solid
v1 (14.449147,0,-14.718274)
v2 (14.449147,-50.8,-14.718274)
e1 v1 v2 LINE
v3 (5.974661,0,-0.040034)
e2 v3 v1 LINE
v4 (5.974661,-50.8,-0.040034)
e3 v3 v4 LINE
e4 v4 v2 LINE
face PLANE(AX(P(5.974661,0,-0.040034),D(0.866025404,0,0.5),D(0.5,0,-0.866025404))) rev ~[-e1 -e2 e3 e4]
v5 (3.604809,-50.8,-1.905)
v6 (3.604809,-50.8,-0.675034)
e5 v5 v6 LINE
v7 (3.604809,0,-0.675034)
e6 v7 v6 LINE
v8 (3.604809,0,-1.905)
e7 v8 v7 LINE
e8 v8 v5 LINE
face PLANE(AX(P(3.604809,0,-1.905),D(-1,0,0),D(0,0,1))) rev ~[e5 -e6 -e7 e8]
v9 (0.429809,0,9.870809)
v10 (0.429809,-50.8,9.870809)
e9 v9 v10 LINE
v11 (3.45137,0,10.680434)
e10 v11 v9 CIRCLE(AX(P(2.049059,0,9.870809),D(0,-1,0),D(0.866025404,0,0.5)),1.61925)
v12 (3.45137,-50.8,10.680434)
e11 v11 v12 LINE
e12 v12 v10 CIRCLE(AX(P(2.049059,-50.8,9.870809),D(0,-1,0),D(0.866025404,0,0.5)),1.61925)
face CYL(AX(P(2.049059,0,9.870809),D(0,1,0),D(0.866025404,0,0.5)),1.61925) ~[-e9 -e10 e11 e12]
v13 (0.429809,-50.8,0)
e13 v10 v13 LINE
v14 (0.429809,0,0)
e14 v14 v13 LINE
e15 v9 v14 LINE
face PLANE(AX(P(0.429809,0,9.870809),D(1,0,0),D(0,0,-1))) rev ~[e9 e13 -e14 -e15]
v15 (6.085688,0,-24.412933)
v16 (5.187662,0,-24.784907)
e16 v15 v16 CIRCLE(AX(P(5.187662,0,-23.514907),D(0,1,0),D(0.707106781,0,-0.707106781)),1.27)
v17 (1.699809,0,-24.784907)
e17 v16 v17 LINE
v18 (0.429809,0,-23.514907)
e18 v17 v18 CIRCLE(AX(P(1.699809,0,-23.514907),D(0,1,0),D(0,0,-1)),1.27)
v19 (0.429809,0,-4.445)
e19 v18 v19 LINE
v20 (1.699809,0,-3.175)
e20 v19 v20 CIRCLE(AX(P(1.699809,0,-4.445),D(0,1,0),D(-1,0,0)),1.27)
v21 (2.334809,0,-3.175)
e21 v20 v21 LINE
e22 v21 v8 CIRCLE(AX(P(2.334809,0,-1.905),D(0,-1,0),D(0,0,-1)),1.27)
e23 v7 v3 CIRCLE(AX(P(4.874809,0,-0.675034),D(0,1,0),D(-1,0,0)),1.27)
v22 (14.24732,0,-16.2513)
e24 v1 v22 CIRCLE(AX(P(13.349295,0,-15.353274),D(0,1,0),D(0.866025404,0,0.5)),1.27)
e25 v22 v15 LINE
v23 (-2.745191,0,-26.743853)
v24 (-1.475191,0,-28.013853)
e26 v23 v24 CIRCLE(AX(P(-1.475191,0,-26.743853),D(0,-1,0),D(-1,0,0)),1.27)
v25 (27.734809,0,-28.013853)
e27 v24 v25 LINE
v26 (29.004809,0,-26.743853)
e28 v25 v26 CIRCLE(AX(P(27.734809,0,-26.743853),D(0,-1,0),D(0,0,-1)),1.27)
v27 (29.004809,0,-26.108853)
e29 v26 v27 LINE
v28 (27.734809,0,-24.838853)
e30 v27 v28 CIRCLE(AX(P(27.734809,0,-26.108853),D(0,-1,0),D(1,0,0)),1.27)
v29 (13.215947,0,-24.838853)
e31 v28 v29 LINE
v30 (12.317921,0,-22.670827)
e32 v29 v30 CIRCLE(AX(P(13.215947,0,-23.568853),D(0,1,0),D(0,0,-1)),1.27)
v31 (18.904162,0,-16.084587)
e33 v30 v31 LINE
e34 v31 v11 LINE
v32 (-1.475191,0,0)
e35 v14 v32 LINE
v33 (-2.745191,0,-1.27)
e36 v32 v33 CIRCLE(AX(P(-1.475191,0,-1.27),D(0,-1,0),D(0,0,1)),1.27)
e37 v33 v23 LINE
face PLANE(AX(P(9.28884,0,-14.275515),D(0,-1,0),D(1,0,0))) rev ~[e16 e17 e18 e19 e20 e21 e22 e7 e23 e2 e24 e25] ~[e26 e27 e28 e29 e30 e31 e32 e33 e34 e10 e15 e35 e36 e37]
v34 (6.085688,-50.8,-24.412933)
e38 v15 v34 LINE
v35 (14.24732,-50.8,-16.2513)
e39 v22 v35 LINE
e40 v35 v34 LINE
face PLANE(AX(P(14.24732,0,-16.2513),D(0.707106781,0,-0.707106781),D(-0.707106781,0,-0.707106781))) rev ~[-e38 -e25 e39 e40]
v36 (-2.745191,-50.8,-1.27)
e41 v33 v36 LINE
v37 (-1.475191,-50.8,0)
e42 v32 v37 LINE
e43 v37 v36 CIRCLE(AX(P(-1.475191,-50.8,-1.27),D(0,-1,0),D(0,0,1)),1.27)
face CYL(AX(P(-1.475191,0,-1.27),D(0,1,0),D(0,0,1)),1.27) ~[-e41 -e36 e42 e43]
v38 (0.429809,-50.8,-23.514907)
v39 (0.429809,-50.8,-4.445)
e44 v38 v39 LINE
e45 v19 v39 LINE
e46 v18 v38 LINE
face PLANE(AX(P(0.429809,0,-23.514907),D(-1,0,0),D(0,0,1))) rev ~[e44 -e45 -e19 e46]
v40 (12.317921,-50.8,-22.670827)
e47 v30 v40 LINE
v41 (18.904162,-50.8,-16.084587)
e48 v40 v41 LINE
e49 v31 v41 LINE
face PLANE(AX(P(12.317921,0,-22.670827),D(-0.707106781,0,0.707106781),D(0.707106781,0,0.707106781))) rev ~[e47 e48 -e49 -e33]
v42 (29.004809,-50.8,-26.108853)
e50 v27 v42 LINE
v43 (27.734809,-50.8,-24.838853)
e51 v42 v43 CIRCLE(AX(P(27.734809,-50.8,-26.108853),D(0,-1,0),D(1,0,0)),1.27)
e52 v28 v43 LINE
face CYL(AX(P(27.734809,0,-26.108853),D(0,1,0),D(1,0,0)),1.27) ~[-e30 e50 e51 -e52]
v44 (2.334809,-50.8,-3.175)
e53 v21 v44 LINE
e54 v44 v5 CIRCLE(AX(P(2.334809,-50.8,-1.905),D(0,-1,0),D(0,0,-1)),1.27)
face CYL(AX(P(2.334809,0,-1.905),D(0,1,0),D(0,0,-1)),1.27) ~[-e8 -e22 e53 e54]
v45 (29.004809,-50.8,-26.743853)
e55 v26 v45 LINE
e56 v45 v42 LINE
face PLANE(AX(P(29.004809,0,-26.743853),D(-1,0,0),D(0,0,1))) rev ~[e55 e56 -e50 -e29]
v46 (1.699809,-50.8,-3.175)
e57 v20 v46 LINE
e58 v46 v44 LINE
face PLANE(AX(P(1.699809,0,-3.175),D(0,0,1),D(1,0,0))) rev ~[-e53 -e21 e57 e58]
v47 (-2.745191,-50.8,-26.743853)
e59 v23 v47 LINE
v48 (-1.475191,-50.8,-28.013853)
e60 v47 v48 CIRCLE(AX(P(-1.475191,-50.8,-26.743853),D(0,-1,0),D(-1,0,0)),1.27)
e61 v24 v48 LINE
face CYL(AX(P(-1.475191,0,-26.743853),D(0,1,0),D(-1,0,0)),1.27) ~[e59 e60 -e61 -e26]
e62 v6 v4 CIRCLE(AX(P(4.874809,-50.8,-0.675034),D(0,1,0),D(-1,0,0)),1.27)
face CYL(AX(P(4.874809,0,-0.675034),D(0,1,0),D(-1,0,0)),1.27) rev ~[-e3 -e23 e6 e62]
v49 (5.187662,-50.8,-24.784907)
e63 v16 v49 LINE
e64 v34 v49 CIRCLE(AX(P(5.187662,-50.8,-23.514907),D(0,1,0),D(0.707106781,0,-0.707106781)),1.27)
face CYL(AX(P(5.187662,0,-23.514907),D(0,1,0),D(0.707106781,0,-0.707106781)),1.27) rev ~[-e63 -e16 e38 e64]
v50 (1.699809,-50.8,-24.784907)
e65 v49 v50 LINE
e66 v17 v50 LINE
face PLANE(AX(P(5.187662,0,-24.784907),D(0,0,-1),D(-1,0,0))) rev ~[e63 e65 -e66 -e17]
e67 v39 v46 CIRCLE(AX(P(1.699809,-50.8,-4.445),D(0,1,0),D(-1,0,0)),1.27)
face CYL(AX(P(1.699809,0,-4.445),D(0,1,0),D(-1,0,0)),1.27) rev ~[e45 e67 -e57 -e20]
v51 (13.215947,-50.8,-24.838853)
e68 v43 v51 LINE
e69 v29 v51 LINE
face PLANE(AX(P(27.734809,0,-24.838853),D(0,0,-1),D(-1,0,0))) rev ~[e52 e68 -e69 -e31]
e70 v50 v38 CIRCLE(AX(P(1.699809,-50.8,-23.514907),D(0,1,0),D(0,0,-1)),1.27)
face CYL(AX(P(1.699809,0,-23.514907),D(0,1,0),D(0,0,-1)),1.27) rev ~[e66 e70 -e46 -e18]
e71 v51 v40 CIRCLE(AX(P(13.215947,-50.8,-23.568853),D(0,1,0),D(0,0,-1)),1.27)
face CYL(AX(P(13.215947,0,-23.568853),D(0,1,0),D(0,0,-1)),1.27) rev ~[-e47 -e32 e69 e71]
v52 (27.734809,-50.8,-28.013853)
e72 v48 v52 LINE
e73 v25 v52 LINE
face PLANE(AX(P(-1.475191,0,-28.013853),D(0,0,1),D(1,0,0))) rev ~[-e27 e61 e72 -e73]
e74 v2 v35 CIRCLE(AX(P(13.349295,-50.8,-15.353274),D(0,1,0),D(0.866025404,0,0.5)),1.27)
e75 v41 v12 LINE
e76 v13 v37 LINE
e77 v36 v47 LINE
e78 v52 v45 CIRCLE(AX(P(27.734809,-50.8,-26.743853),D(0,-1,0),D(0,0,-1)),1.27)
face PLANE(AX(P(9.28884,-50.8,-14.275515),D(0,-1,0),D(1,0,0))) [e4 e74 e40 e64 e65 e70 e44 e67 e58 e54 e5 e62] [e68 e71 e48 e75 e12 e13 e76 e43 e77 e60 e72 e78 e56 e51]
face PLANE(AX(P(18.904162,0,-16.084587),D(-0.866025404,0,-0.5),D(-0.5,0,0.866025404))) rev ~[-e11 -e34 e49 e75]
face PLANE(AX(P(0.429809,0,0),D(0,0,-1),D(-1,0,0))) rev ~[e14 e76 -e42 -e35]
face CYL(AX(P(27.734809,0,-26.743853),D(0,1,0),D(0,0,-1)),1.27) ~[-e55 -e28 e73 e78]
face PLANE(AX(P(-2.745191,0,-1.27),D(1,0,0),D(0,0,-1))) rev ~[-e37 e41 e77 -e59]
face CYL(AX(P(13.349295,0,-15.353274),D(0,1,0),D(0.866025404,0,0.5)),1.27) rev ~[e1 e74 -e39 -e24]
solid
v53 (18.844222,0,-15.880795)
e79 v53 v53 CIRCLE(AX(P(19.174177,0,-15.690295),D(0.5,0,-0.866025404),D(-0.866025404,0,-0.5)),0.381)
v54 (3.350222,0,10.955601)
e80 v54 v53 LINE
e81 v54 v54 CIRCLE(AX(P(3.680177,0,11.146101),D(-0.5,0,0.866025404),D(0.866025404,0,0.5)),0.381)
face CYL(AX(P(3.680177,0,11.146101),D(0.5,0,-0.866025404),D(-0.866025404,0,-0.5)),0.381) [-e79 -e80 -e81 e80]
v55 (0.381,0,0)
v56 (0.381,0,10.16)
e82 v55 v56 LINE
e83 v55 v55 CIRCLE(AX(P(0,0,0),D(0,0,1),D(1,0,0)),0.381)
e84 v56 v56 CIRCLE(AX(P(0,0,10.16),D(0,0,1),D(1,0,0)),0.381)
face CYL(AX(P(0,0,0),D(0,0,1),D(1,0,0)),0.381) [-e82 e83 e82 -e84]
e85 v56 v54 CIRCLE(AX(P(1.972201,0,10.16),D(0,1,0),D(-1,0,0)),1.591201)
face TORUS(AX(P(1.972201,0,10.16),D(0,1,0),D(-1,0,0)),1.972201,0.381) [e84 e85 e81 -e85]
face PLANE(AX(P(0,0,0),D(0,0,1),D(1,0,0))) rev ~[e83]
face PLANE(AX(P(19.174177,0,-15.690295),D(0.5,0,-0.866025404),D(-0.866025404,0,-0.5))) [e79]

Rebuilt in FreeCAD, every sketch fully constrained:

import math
import FreeCAD as App
import Part
import Sketcher

V = App.Vector
Q = App.Units.Quantity

doc = App.newDocument("Part")
body = doc.addObject("PartDesign::Body", "Body")

# Sketch on XY plane
sketch1 = body.newObject("Sketcher::SketchObject", "Sketch")
sketch1.AttachmentSupport = (doc.getObject("XY_Plane"), [""])
sketch1.MapMode = "FlatFace"
sketch1.addGeometry(Part.Circle(V(0, 0, 0), V(0, 0, 1), 0.38), False)
sketch1.addConstraint([
    Sketcher.Constraint("Coincident", 0, 3, -1, 1),
    Sketcher.Constraint("Diameter", 0, Q("0.03 in")),
])

# Sketch on XZ plane
sketch2 = body.newObject("Sketcher::SketchObject", "Sketch001")
sketch2.AttachmentSupport = (doc.getObject("XZ_Plane"), [""])
sketch2.MapMode = "FlatFace"
sketch2.addGeometry([
    Part.LineSegment(V(0, 0, 0), V(0, 10.2, 0)),
    Part.ArcOfCircle(Part.Circle(V(2, 10.2, 0), V(0, 0, 1), 2), math.radians(30), math.radians(180)),
    Part.LineSegment(V(3.7, 11.1, 0), V(19.2, -15.7, 0)),
], False)
sketch2.addConstraint([
    Sketcher.Constraint("Tangent", 0, 2, 1, 2),
    Sketcher.Constraint("Tangent", 1, 1, 2, 1),
    Sketcher.Constraint("Vertical", 0),
    Sketcher.Constraint("Coincident", 0, 1, -1, 1),
    Sketcher.Constraint("DistanceY", 0, 1, 0, 2, Q("0.4 in")),
    Sketcher.Constraint("Angle", 2, Q("-60 deg")),
    Sketcher.Constraint("Distance", 2, Q("1.22 in")),
    Sketcher.Constraint("Radius", 1, Q("1.972201 mm")),
])
doc.recompute()

additivepipe = body.newObject("PartDesign::AdditivePipe", "AdditivePipe")
additivepipe.Profile = sketch1
additivepipe.Spine = (sketch2, ["Edge1", "Edge2", "Edge3"])
body2 = doc.addObject("PartDesign::Body", "Body001")

# Sketch on XZ plane
sketch3 = body2.newObject("Sketcher::SketchObject", "Sketch002")
sketch3.AttachmentSupport = (doc.getObject("XZ_Plane001"), [""])
sketch3.MapMode = "FlatFace"
sketch3.addGeometry([
    Part.LineSegment(V(-1.5, -28, 0), V(27.7, -28, 0)),  # 0
    Part.ArcOfCircle(Part.Circle(V(27.7, -26.7, 0), V(0, 0, 1), 1.3), math.radians(-90), math.radians(0)),  # 1
    Part.LineSegment(V(29, -26.7, 0), V(29, -26.1, 0)),  # 2
    Part.ArcOfCircle(Part.Circle(V(27.7, -26.1, 0), V(0, 0, 1), 1.3), math.radians(0), math.radians(90)),  # 3
    Part.LineSegment(V(27.7, -24.8, 0), V(13.2, -24.8, 0)),  # 4
    Part.ArcOfCircle(Part.Circle(V(13.2, -23.6, 0), V(0, 0, 1), 1.3), math.radians(135), math.radians(270)),  # 5
    Part.LineSegment(V(12.3, -22.7, 0), V(18.9, -16.1, 0)),  # 6
    Part.LineSegment(V(18.9, -16.1, 0), V(3.5, 10.7, 0)),  # 7
    Part.ArcOfCircle(Part.Circle(V(2, 9.9, 0), V(0, 0, 1), 1.6), math.radians(30), math.radians(180)),  # 8
    Part.LineSegment(V(0.4, 9.9, 0), V(0.4, 0, 0)),  # 9
    Part.LineSegment(V(0.4, 0, 0), V(-1.5, 0, 0)),  # 10
    Part.ArcOfCircle(Part.Circle(V(-1.5, -1.3, 0), V(0, 0, 1), 1.3), math.radians(90), math.radians(180)),  # 11
    Part.LineSegment(V(-2.7, -1.3, 0), V(-2.7, -26.7, 0)),  # 12
    Part.ArcOfCircle(Part.Circle(V(-1.5, -26.7, 0), V(0, 0, 1), 1.3), math.radians(180), math.radians(270)),  # 13
    Part.ArcOfCircle(Part.Circle(V(5.2, -23.5, 0), V(0, 0, 1), 1.3), math.radians(-90), math.radians(-45)),  # 14
    Part.LineSegment(V(5.2, -24.8, 0), V(1.7, -24.8, 0)),  # 15
    Part.ArcOfCircle(Part.Circle(V(1.7, -23.5, 0), V(0, 0, 1), 1.3), math.radians(180), math.radians(270)),  # 16
    Part.LineSegment(V(0.4, -23.5, 0), V(0.4, -4.4, 0)),  # 17
    Part.ArcOfCircle(Part.Circle(V(1.7, -4.4, 0), V(0, 0, 1), 1.3), math.radians(90), math.radians(180)),  # 18
    Part.LineSegment(V(1.7, -3.2, 0), V(2.3, -3.2, 0)),  # 19
    Part.ArcOfCircle(Part.Circle(V(2.3, -1.9, 0), V(0, 0, 1), 1.3), math.radians(-90), math.radians(0)),  # 20
    Part.LineSegment(V(3.6, -1.9, 0), V(3.6, -0.7, 0)),  # 21
    Part.ArcOfCircle(Part.Circle(V(4.9, -0.7, 0), V(0, 0, 1), 1.3), math.radians(30), math.radians(180)),  # 22
    Part.LineSegment(V(6, 0, 0), V(14.4, -14.7, 0)),  # 23
    Part.ArcOfCircle(Part.Circle(V(13.3, -15.4, 0), V(0, 0, 1), 1.3), math.radians(-45), math.radians(30)),  # 24
    Part.LineSegment(V(14.2, -16.3, 0), V(6.1, -24.4, 0)),  # 25
], False)
sketch3.addConstraint([
    Sketcher.Constraint("Tangent", 0, 2, 1, 1),
    Sketcher.Constraint("Tangent", 1, 2, 2, 1),
    Sketcher.Constraint("Tangent", 2, 2, 3, 1),
    Sketcher.Constraint("Tangent", 3, 2, 4, 1),
    Sketcher.Constraint("Tangent", 4, 2, 5, 2),
    Sketcher.Constraint("Tangent", 5, 1, 6, 1),
    Sketcher.Constraint("Coincident", 6, 2, 7, 1),
    Sketcher.Constraint("Tangent", 7, 2, 8, 1),
    Sketcher.Constraint("Tangent", 8, 2, 9, 1),
    Sketcher.Constraint("Coincident", 9, 2, 10, 1),
    Sketcher.Constraint("Tangent", 10, 2, 11, 1),
    Sketcher.Constraint("Tangent", 11, 2, 12, 1),
    Sketcher.Constraint("Tangent", 12, 2, 13, 1),
    Sketcher.Constraint("Tangent", 13, 2, 0, 1),
    Sketcher.Constraint("Tangent", 14, 1, 15, 1),
    Sketcher.Constraint("Tangent", 15, 2, 16, 2),
    Sketcher.Constraint("Tangent", 16, 1, 17, 1),
    Sketcher.Constraint("Tangent", 17, 2, 18, 2),
    Sketcher.Constraint("Tangent", 18, 1, 19, 1),
    Sketcher.Constraint("Tangent", 19, 2, 20, 1),
    Sketcher.Constraint("Tangent", 20, 2, 21, 1),
    Sketcher.Constraint("Tangent", 21, 2, 22, 2),
    Sketcher.Constraint("Tangent", 22, 1, 23, 1),
    Sketcher.Constraint("Tangent", 23, 2, 24, 2),
    Sketcher.Constraint("Tangent", 24, 1, 25, 1),
    Sketcher.Constraint("Tangent", 25, 2, 14, 2),
    Sketcher.Constraint("Horizontal", 0),
    Sketcher.Constraint("Vertical", 2),
    Sketcher.Constraint("Horizontal", 4),
    Sketcher.Constraint("Vertical", 9),
    Sketcher.Constraint("Horizontal", 10),
    Sketcher.Constraint("Vertical", 12),
    Sketcher.Constraint("Horizontal", 15),
    Sketcher.Constraint("Vertical", 17),
    Sketcher.Constraint("Horizontal", 19),
    Sketcher.Constraint("Vertical", 21),
    Sketcher.Constraint("Equal", 1, 3),
    Sketcher.Constraint("Equal", 3, 5),
    Sketcher.Constraint("Equal", 5, 11),
    Sketcher.Constraint("Equal", 11, 13),
    Sketcher.Constraint("Equal", 13, 14),
    Sketcher.Constraint("Equal", 14, 16),
    Sketcher.Constraint("Equal", 16, 18),
    Sketcher.Constraint("Equal", 18, 20),
    Sketcher.Constraint("Equal", 20, 22),
    Sketcher.Constraint("Equal", 22, 24),
    Sketcher.Constraint("PointOnObject", 9, 2, -1),
    Sketcher.Constraint("Parallel", 7, 23),
    Sketcher.Constraint("Parallel", 6, 25),
    Sketcher.Constraint("Vertical", 9, 2, 16, 1),
    Sketcher.Constraint("Equal", 19, 2),
    Sketcher.Constraint("Radius", 1, Q("0.05 in")),
    Sketcher.Constraint("Angle", 6, Q("45 deg")),
    Sketcher.Constraint("Angle", 7, Q("120 deg")),
    Sketcher.Constraint("DistanceX", 0, 1, 0, 2, Q("1.15 in")),
    Sketcher.Constraint("DistanceX", 11, 2, 20, 3, Q("0.2 in")),
    Sketcher.Constraint("DistanceX", 10, 2, 10, 1, Q("0.075 in")),
    Sketcher.Constraint("DistanceY", 18, 3, -1, 1, Q("0.175 in")),
    Sketcher.Constraint("Radius", 8, Q("1.61925 mm")),
    Sketcher.Constraint("DistanceX", 4, 2, 4, 1, Q("14.518862 mm")),
    Sketcher.Constraint("DistanceY", 9, 2, 9, 1, Q("9.870809 mm")),
    Sketcher.Constraint("DistanceY", 24, 1, -1, 1, Q("16.2513 mm")),
    Sketcher.Constraint("DistanceX", 5, 3, 23, 2, Q("1.2332 mm")),
    Sketcher.Constraint("Distance", 6, Q("9.314351 mm")),
    Sketcher.Constraint("Distance", 25, Q("11.542292 mm")),
    Sketcher.Constraint("DistanceX", -1, 1, 1, 3, Q("27.734809 mm")),
])
pad1 = body2.newObject("PartDesign::Pad", "Pad")
pad1.Profile = sketch3
pad1.Length = Q("2 in")

doc.recompute()
